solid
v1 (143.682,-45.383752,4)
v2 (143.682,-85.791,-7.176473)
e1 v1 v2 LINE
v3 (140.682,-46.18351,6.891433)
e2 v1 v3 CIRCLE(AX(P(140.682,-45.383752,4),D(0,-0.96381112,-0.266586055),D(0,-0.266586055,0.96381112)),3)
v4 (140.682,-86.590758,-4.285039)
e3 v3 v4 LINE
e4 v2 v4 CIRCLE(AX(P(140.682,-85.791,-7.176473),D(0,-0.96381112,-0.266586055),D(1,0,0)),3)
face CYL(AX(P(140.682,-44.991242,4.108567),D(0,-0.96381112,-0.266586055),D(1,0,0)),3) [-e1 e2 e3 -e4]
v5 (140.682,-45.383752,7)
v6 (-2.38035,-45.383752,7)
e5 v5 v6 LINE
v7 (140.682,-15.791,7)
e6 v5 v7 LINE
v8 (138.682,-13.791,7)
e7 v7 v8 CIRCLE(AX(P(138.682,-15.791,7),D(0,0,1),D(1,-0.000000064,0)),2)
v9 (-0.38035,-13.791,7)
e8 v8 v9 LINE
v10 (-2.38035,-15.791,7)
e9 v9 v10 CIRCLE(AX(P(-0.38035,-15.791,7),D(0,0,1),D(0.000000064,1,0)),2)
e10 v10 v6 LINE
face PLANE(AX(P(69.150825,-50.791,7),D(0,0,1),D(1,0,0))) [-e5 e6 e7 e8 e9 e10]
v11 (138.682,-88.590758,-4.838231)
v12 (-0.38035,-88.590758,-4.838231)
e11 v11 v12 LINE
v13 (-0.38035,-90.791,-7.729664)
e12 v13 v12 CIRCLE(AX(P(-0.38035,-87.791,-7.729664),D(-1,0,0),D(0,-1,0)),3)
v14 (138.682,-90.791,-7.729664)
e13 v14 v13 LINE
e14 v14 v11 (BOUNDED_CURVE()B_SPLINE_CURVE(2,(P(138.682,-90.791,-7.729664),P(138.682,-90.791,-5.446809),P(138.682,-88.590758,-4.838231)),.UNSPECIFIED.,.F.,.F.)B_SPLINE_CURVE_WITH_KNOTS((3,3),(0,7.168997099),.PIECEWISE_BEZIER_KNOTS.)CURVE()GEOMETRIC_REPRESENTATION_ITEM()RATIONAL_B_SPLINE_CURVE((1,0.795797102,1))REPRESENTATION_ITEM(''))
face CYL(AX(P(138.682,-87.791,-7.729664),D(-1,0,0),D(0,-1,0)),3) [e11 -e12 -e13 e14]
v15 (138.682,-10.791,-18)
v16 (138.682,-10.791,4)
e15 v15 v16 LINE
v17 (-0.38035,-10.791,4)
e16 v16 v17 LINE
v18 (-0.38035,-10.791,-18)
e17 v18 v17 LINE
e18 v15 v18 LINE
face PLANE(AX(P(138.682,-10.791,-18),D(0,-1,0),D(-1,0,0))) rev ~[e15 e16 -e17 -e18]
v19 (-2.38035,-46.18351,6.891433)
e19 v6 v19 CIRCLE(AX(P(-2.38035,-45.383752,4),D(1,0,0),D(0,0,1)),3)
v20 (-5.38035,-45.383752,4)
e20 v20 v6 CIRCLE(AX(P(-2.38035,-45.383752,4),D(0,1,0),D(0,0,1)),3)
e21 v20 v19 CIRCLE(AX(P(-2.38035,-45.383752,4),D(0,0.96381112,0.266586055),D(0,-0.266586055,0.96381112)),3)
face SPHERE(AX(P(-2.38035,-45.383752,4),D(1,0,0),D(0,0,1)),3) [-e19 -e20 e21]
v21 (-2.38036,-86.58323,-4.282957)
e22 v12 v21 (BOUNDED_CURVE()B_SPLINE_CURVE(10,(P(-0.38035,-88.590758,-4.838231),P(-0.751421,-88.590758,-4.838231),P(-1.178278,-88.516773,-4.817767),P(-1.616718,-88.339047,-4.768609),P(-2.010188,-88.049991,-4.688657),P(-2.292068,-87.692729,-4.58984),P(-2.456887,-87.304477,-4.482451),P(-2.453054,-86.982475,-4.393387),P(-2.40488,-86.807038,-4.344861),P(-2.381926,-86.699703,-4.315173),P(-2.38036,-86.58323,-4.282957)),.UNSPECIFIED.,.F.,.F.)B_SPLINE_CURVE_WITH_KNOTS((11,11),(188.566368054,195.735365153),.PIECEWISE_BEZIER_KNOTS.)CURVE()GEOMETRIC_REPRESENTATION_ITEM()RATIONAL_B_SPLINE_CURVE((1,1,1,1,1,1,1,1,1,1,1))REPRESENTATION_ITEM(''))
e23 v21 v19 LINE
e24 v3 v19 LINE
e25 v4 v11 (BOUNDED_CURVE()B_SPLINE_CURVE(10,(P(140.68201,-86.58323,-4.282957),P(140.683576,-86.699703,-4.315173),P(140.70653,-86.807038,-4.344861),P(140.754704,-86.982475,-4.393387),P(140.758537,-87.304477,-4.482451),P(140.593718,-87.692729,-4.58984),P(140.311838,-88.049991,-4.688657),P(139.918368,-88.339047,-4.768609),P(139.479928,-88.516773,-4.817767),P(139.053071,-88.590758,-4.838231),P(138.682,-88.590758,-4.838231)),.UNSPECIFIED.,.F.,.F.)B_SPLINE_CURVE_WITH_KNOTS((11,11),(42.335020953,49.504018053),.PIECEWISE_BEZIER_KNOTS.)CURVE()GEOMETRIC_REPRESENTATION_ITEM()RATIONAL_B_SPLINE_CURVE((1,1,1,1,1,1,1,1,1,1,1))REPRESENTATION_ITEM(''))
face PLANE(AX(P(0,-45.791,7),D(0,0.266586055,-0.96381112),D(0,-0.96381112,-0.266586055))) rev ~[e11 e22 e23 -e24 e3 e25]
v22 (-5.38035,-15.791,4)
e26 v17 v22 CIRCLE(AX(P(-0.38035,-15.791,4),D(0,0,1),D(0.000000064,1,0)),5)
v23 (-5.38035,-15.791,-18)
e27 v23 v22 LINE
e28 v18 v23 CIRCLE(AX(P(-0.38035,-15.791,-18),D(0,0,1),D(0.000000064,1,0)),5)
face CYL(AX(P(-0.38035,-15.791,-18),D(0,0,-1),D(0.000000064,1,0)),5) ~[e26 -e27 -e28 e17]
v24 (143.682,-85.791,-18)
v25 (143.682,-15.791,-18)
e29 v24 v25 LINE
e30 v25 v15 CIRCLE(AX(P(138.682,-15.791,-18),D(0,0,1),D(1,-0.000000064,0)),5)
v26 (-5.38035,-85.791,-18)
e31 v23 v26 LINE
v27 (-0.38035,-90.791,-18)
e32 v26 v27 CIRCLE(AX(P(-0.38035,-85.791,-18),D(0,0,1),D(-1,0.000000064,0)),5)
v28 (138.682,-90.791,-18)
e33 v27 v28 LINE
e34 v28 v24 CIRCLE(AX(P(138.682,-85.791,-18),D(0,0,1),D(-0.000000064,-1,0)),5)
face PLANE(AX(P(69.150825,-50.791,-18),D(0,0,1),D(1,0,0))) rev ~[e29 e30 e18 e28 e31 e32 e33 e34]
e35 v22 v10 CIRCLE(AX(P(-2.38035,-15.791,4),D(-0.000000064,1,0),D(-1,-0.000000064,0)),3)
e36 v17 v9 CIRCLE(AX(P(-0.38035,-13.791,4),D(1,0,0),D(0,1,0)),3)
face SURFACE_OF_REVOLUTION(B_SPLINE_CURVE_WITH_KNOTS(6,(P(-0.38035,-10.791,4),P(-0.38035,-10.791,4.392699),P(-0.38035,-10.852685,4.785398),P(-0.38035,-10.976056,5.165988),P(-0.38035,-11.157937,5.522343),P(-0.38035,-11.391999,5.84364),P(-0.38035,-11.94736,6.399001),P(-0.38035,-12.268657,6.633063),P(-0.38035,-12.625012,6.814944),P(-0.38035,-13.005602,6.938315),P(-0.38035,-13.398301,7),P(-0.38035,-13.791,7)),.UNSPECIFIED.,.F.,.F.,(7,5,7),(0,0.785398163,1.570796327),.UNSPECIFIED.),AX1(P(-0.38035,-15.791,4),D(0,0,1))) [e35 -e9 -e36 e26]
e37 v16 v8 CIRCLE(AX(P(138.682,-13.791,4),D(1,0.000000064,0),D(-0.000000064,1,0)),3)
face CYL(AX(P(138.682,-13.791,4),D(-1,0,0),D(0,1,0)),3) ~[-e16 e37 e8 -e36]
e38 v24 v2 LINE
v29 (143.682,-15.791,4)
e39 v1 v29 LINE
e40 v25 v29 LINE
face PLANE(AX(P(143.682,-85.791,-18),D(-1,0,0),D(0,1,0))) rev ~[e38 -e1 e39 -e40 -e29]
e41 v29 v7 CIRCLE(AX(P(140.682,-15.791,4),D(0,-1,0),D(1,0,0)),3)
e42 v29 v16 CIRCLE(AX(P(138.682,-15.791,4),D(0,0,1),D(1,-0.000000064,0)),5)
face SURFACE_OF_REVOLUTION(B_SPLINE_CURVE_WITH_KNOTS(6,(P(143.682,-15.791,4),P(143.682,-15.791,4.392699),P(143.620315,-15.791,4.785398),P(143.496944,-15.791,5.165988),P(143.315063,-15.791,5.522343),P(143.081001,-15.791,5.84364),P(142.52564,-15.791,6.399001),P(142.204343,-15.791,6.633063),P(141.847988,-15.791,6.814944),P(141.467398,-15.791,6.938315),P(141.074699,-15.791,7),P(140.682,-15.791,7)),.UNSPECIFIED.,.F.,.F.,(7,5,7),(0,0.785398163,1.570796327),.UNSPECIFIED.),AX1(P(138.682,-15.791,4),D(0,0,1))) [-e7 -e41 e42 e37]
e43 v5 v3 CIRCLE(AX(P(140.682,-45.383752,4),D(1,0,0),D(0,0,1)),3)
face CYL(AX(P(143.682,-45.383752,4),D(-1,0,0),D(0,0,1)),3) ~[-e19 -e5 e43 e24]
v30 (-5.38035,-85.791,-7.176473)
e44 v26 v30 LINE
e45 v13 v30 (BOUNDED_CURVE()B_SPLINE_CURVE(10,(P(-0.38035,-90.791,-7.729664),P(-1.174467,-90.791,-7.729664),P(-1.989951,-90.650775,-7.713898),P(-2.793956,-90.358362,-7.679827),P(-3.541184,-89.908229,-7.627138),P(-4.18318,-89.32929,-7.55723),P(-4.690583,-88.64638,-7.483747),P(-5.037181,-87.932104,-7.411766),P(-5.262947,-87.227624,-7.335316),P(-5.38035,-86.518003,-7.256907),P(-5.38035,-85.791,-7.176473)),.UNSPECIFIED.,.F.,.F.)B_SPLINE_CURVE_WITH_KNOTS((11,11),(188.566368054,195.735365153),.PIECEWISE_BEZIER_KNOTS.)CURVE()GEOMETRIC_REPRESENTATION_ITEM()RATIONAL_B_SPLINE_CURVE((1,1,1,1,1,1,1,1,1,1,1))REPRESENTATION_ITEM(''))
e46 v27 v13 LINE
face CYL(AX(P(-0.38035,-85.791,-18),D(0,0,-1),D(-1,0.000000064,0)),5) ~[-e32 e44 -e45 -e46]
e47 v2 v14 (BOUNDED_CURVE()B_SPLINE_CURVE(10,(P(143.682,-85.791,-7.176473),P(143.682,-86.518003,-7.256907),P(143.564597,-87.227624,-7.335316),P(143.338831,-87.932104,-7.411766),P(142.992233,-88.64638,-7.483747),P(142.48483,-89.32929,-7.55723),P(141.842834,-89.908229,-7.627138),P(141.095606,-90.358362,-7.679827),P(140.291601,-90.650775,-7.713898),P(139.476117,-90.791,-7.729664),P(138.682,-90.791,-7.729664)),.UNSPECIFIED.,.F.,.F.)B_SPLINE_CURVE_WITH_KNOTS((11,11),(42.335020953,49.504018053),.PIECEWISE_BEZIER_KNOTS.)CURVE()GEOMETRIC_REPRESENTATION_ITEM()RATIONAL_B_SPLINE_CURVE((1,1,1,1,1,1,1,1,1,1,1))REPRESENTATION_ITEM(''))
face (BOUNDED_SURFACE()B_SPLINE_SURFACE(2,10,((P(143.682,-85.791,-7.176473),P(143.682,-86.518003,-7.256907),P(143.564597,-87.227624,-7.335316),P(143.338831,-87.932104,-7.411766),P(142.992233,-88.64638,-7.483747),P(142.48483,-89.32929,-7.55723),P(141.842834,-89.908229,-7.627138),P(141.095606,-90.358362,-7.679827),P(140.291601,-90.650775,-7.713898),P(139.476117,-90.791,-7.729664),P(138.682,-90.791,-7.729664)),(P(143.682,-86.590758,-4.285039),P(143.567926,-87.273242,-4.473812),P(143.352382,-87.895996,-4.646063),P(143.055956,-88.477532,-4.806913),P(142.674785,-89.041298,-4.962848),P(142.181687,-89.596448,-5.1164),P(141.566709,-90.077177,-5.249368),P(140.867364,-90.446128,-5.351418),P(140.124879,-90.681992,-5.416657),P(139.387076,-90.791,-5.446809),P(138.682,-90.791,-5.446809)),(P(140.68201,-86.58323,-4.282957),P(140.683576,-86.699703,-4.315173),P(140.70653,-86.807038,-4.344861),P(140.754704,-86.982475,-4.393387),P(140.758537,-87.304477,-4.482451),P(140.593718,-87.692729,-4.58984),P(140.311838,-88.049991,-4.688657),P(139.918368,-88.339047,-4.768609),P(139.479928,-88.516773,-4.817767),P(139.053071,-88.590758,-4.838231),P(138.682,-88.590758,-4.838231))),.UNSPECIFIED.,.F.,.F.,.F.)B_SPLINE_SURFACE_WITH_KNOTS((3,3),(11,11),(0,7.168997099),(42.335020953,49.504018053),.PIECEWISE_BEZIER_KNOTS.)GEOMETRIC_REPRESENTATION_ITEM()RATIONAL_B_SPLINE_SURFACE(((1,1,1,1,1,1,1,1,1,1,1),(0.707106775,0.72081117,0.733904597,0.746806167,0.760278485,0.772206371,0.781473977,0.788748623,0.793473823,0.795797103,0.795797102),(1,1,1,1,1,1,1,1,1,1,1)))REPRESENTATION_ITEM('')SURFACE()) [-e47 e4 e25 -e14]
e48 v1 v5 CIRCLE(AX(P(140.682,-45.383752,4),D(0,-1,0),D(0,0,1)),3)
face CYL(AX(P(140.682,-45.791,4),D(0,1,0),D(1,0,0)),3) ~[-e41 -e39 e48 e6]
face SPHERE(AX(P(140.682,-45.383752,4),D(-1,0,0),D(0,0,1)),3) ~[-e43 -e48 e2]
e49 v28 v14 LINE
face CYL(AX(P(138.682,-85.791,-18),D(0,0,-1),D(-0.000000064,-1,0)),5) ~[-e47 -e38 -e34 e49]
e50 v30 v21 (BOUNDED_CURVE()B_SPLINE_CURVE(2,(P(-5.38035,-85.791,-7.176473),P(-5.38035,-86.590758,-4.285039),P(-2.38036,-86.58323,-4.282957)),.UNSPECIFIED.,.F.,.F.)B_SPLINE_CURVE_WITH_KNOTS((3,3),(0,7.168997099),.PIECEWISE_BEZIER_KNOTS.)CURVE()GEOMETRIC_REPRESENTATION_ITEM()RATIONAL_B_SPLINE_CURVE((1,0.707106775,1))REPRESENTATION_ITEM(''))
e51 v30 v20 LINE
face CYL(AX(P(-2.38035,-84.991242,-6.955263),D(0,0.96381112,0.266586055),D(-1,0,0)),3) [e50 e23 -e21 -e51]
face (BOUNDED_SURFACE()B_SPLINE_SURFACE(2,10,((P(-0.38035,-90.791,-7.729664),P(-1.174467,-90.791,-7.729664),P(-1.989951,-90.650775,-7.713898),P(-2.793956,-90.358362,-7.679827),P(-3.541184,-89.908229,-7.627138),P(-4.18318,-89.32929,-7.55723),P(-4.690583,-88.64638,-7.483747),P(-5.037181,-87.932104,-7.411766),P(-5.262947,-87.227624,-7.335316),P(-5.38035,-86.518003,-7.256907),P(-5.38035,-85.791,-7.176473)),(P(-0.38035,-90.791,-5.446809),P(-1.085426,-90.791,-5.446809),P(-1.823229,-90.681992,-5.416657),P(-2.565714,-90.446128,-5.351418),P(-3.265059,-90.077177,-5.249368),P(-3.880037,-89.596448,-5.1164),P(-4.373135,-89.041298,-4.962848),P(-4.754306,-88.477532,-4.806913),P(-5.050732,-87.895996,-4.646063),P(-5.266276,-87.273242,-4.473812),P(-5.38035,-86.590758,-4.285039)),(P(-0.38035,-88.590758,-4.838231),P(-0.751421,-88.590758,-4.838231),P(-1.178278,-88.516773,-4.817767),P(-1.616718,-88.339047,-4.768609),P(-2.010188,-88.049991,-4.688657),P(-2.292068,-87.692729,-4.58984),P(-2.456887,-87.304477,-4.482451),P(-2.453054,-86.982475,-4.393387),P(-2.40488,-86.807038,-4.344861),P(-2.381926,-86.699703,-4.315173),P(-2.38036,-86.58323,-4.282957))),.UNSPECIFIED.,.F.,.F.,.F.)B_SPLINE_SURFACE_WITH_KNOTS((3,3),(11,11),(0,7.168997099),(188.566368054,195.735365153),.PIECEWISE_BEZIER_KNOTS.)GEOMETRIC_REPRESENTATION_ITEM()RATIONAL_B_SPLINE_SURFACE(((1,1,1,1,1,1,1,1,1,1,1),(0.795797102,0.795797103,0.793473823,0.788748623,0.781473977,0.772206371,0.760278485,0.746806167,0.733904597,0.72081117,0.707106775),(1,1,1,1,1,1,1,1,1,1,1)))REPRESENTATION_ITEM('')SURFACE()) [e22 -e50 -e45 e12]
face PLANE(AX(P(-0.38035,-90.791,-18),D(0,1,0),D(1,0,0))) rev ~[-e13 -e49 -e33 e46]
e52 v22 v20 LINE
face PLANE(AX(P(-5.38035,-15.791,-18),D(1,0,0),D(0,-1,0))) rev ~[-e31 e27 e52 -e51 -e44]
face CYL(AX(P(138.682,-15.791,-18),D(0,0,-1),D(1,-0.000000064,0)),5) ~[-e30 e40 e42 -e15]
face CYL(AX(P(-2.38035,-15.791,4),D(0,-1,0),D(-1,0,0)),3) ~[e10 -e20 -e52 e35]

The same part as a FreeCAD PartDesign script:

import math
import FreeCAD as App
import Part
import Sketcher
Q = App.Units.Quantity


def edges_at(feature, points):
    """Names of the edges that pass closest to the given points."""
    edges = feature.Shape.Edges
    near = lambda p: min(range(len(edges)), key=lambda i: edges[i].distToShape(Part.Vertex(*p))[0])
    return sorted({f"Edge{near(p) + 1}" for p in points})

doc = App.newDocument("Part")
body = doc.addObject("PartDesign::Body", "Body")

# Sketch on XY plane
sketch1 = doc.addObject("Sketcher::SketchObject", "Sketch")
body.addObject(sketch1)
sketch1.AttachmentSupport = (doc.XY_Plane, [""])
sketch1.MapMode = "FlatFace"
sketch1.AttachmentOffset = App.Placement(App.Vector(0, 0, -18), App.Rotation())
sketch1.addGeometry(Part.LineSegment(App.Vector(-0.4, -90.8, 0), App.Vector(138.7, -90.8, 0)), False)
sketch1.addGeometry(Part.ArcOfCircle(Part.Circle(App.Vector(138.7, -85.8, 0), App.Vector(0, 0, 1), 5), math.radians(-90), math.radians(0)), False)
sketch1.addGeometry(Part.LineSegment(App.Vector(143.7, -85.8, 0), App.Vector(143.7, -15.8, 0)), False)
sketch1.addGeometry(Part.ArcOfCircle(Part.Circle(App.Vector(138.7, -15.8, 0), App.Vector(0, 0, 1), 5), math.radians(0), math.radians(90)), False)
sketch1.addGeometry(Part.LineSegment(App.Vector(138.7, -10.8, 0), App.Vector(-0.4, -10.8, 0)), False)
sketch1.addGeometry(Part.ArcOfCircle(Part.Circle(App.Vector(-0.4, -15.8, 0), App.Vector(0, 0, 1), 5), math.radians(90), math.radians(180)), False)
sketch1.addGeometry(Part.LineSegment(App.Vector(-5.4, -15.8, 0), App.Vector(-5.4, -85.8, 0)), False)
sketch1.addGeometry(Part.ArcOfCircle(Part.Circle(App.Vector(-0.4, -85.8, 0), App.Vector(0, 0, 1), 5), math.radians(180), math.radians(270)), False)
sketch1.addConstraint(Sketcher.Constraint("Tangent", 0, 2, 1, 1))
sketch1.addConstraint(Sketcher.Constraint("Tangent", 1, 2, 2, 1))
sketch1.addConstraint(Sketcher.Constraint("Tangent", 2, 2, 3, 1))
sketch1.addConstraint(Sketcher.Constraint("Tangent", 3, 2, 4, 1))
sketch1.addConstraint(Sketcher.Constraint("Tangent", 4, 2, 5, 1))
sketch1.addConstraint(Sketcher.Constraint("Tangent", 5, 2, 6, 1))
sketch1.addConstraint(Sketcher.Constraint("Tangent", 6, 2, 7, 1))
sketch1.addConstraint(Sketcher.Constraint("Tangent", 7, 2, 0, 1))
sketch1.addConstraint(Sketcher.Constraint("Horizontal", 0))
sketch1.addConstraint(Sketcher.Constraint("Vertical", 2))
sketch1.addConstraint(Sketcher.Constraint("Horizontal", 4))
sketch1.addConstraint(Sketcher.Constraint("Vertical", 6))
sketch1.addConstraint(Sketcher.Constraint("Equal", 1, 3))
sketch1.addConstraint(Sketcher.Constraint("Equal", 3, 5))
sketch1.addConstraint(Sketcher.Constraint("Equal", 5, 7))
sketch1.addConstraint(Sketcher.Constraint("Radius", 1, Q("5 mm")))
sketch1.addConstraint(Sketcher.Constraint("DistanceY", 2, 1, 2, 2, Q("70 mm")))
sketch1.addConstraint(Sketcher.Constraint("DistanceX", -1, 1, 1, 3, Q("138.682 mm")))
sketch1.addConstraint(Sketcher.Constraint("DistanceY", 1, 3, -1, 1, Q("85.791 mm")))
sketch1.addConstraint(Sketcher.Constraint("DistanceX", 0, 1, 0, 2, Q("139.06235 mm")))
pad1 = doc.addObject("PartDesign::Pad", "Pad")
body.addObject(pad1)
pad1.Profile = sketch1
pad1.Length = 25

# Sketch on YZ plane
sketch2 = doc.addObject("Sketcher::SketchObject", "Sketch001")
body.addObject(sketch2)
sketch2.AttachmentSupport = (doc.YZ_Plane, [""])
sketch2.MapMode = "FlatFace"
sketch2.addGeometry(Part.LineSegment(App.Vector(-92.8, -6, 0), App.Vector(-45.8, 7, 0)), False)
sketch2.addGeometry(Part.LineSegment(App.Vector(-45.8, 7, 0), App.Vector(-45.8, 9, 0)), False)
sketch2.addGeometry(Part.LineSegment(App.Vector(-45.8, 9, 0), App.Vector(-92.8, 9, 0)), False)
sketch2.addGeometry(Part.LineSegment(App.Vector(-92.8, 9, 0), App.Vector(-92.8, -6, 0)), False)
sketch2.addConstraint(Sketcher.Constraint("Coincident", 0, 2, 1, 1))
sketch2.addConstraint(Sketcher.Constraint("Coincident", 1, 2, 2, 1))
sketch2.addConstraint(Sketcher.Constraint("Coincident", 2, 2, 3, 1))
sketch2.addConstraint(Sketcher.Constraint("Coincident", 3, 2, 0, 1))
sketch2.addConstraint(Sketcher.Constraint("Vertical", 1))
sketch2.addConstraint(Sketcher.Constraint("Horizontal", 2))
sketch2.addConstraint(Sketcher.Constraint("Vertical", 3))
sketch2.addConstraint(Sketcher.Constraint("DistanceX", 2, 2, 2, 1, Q("47 mm")))
sketch2.addConstraint(Sketcher.Constraint("DistanceY", 1, 1, 1, 2, Q("2 mm")))
sketch2.addConstraint(Sketcher.Constraint("DistanceY", 3, 2, 3, 1, Q("15 mm")))
sketch2.addConstraint(Sketcher.Constraint("DistanceY", -1, 1, 0, 2, Q("7 mm")))
sketch2.addConstraint(Sketcher.Constraint("DistanceX", 0, 2, -1, 1, Q("45.791 mm")))
pocket1 = doc.addObject("PartDesign::Pocket", "Pocket")
body.addObject(pocket1)
pocket1.Profile = sketch2
pocket1.Type = "ThroughAll"
pocket1.Midplane = True
doc.recompute()

fillet = doc.addObject("PartDesign::Fillet", "Fillet")
body.addObject(fillet)
fillet.Base = (pocket1, edges_at(pocket1, [
    (69.151, -90.791, -5.447),
    (142.25, -89.294, -5.033),
    (69.151, -45.791, 7),
    (-5.38, -65.791, 1.468),
    (-3.948, -89.294, -5.033),
    (143.682, -65.791, 1.468),
    (143.682, -30.791, 7),
    (142.218, -12.255, 7),
    (69.151, -10.791, 7),
    (-3.916, -12.255, 7),
    (-5.38, -30.791, 7),
]))
fillet.Radius = 3

doc.recompute()
